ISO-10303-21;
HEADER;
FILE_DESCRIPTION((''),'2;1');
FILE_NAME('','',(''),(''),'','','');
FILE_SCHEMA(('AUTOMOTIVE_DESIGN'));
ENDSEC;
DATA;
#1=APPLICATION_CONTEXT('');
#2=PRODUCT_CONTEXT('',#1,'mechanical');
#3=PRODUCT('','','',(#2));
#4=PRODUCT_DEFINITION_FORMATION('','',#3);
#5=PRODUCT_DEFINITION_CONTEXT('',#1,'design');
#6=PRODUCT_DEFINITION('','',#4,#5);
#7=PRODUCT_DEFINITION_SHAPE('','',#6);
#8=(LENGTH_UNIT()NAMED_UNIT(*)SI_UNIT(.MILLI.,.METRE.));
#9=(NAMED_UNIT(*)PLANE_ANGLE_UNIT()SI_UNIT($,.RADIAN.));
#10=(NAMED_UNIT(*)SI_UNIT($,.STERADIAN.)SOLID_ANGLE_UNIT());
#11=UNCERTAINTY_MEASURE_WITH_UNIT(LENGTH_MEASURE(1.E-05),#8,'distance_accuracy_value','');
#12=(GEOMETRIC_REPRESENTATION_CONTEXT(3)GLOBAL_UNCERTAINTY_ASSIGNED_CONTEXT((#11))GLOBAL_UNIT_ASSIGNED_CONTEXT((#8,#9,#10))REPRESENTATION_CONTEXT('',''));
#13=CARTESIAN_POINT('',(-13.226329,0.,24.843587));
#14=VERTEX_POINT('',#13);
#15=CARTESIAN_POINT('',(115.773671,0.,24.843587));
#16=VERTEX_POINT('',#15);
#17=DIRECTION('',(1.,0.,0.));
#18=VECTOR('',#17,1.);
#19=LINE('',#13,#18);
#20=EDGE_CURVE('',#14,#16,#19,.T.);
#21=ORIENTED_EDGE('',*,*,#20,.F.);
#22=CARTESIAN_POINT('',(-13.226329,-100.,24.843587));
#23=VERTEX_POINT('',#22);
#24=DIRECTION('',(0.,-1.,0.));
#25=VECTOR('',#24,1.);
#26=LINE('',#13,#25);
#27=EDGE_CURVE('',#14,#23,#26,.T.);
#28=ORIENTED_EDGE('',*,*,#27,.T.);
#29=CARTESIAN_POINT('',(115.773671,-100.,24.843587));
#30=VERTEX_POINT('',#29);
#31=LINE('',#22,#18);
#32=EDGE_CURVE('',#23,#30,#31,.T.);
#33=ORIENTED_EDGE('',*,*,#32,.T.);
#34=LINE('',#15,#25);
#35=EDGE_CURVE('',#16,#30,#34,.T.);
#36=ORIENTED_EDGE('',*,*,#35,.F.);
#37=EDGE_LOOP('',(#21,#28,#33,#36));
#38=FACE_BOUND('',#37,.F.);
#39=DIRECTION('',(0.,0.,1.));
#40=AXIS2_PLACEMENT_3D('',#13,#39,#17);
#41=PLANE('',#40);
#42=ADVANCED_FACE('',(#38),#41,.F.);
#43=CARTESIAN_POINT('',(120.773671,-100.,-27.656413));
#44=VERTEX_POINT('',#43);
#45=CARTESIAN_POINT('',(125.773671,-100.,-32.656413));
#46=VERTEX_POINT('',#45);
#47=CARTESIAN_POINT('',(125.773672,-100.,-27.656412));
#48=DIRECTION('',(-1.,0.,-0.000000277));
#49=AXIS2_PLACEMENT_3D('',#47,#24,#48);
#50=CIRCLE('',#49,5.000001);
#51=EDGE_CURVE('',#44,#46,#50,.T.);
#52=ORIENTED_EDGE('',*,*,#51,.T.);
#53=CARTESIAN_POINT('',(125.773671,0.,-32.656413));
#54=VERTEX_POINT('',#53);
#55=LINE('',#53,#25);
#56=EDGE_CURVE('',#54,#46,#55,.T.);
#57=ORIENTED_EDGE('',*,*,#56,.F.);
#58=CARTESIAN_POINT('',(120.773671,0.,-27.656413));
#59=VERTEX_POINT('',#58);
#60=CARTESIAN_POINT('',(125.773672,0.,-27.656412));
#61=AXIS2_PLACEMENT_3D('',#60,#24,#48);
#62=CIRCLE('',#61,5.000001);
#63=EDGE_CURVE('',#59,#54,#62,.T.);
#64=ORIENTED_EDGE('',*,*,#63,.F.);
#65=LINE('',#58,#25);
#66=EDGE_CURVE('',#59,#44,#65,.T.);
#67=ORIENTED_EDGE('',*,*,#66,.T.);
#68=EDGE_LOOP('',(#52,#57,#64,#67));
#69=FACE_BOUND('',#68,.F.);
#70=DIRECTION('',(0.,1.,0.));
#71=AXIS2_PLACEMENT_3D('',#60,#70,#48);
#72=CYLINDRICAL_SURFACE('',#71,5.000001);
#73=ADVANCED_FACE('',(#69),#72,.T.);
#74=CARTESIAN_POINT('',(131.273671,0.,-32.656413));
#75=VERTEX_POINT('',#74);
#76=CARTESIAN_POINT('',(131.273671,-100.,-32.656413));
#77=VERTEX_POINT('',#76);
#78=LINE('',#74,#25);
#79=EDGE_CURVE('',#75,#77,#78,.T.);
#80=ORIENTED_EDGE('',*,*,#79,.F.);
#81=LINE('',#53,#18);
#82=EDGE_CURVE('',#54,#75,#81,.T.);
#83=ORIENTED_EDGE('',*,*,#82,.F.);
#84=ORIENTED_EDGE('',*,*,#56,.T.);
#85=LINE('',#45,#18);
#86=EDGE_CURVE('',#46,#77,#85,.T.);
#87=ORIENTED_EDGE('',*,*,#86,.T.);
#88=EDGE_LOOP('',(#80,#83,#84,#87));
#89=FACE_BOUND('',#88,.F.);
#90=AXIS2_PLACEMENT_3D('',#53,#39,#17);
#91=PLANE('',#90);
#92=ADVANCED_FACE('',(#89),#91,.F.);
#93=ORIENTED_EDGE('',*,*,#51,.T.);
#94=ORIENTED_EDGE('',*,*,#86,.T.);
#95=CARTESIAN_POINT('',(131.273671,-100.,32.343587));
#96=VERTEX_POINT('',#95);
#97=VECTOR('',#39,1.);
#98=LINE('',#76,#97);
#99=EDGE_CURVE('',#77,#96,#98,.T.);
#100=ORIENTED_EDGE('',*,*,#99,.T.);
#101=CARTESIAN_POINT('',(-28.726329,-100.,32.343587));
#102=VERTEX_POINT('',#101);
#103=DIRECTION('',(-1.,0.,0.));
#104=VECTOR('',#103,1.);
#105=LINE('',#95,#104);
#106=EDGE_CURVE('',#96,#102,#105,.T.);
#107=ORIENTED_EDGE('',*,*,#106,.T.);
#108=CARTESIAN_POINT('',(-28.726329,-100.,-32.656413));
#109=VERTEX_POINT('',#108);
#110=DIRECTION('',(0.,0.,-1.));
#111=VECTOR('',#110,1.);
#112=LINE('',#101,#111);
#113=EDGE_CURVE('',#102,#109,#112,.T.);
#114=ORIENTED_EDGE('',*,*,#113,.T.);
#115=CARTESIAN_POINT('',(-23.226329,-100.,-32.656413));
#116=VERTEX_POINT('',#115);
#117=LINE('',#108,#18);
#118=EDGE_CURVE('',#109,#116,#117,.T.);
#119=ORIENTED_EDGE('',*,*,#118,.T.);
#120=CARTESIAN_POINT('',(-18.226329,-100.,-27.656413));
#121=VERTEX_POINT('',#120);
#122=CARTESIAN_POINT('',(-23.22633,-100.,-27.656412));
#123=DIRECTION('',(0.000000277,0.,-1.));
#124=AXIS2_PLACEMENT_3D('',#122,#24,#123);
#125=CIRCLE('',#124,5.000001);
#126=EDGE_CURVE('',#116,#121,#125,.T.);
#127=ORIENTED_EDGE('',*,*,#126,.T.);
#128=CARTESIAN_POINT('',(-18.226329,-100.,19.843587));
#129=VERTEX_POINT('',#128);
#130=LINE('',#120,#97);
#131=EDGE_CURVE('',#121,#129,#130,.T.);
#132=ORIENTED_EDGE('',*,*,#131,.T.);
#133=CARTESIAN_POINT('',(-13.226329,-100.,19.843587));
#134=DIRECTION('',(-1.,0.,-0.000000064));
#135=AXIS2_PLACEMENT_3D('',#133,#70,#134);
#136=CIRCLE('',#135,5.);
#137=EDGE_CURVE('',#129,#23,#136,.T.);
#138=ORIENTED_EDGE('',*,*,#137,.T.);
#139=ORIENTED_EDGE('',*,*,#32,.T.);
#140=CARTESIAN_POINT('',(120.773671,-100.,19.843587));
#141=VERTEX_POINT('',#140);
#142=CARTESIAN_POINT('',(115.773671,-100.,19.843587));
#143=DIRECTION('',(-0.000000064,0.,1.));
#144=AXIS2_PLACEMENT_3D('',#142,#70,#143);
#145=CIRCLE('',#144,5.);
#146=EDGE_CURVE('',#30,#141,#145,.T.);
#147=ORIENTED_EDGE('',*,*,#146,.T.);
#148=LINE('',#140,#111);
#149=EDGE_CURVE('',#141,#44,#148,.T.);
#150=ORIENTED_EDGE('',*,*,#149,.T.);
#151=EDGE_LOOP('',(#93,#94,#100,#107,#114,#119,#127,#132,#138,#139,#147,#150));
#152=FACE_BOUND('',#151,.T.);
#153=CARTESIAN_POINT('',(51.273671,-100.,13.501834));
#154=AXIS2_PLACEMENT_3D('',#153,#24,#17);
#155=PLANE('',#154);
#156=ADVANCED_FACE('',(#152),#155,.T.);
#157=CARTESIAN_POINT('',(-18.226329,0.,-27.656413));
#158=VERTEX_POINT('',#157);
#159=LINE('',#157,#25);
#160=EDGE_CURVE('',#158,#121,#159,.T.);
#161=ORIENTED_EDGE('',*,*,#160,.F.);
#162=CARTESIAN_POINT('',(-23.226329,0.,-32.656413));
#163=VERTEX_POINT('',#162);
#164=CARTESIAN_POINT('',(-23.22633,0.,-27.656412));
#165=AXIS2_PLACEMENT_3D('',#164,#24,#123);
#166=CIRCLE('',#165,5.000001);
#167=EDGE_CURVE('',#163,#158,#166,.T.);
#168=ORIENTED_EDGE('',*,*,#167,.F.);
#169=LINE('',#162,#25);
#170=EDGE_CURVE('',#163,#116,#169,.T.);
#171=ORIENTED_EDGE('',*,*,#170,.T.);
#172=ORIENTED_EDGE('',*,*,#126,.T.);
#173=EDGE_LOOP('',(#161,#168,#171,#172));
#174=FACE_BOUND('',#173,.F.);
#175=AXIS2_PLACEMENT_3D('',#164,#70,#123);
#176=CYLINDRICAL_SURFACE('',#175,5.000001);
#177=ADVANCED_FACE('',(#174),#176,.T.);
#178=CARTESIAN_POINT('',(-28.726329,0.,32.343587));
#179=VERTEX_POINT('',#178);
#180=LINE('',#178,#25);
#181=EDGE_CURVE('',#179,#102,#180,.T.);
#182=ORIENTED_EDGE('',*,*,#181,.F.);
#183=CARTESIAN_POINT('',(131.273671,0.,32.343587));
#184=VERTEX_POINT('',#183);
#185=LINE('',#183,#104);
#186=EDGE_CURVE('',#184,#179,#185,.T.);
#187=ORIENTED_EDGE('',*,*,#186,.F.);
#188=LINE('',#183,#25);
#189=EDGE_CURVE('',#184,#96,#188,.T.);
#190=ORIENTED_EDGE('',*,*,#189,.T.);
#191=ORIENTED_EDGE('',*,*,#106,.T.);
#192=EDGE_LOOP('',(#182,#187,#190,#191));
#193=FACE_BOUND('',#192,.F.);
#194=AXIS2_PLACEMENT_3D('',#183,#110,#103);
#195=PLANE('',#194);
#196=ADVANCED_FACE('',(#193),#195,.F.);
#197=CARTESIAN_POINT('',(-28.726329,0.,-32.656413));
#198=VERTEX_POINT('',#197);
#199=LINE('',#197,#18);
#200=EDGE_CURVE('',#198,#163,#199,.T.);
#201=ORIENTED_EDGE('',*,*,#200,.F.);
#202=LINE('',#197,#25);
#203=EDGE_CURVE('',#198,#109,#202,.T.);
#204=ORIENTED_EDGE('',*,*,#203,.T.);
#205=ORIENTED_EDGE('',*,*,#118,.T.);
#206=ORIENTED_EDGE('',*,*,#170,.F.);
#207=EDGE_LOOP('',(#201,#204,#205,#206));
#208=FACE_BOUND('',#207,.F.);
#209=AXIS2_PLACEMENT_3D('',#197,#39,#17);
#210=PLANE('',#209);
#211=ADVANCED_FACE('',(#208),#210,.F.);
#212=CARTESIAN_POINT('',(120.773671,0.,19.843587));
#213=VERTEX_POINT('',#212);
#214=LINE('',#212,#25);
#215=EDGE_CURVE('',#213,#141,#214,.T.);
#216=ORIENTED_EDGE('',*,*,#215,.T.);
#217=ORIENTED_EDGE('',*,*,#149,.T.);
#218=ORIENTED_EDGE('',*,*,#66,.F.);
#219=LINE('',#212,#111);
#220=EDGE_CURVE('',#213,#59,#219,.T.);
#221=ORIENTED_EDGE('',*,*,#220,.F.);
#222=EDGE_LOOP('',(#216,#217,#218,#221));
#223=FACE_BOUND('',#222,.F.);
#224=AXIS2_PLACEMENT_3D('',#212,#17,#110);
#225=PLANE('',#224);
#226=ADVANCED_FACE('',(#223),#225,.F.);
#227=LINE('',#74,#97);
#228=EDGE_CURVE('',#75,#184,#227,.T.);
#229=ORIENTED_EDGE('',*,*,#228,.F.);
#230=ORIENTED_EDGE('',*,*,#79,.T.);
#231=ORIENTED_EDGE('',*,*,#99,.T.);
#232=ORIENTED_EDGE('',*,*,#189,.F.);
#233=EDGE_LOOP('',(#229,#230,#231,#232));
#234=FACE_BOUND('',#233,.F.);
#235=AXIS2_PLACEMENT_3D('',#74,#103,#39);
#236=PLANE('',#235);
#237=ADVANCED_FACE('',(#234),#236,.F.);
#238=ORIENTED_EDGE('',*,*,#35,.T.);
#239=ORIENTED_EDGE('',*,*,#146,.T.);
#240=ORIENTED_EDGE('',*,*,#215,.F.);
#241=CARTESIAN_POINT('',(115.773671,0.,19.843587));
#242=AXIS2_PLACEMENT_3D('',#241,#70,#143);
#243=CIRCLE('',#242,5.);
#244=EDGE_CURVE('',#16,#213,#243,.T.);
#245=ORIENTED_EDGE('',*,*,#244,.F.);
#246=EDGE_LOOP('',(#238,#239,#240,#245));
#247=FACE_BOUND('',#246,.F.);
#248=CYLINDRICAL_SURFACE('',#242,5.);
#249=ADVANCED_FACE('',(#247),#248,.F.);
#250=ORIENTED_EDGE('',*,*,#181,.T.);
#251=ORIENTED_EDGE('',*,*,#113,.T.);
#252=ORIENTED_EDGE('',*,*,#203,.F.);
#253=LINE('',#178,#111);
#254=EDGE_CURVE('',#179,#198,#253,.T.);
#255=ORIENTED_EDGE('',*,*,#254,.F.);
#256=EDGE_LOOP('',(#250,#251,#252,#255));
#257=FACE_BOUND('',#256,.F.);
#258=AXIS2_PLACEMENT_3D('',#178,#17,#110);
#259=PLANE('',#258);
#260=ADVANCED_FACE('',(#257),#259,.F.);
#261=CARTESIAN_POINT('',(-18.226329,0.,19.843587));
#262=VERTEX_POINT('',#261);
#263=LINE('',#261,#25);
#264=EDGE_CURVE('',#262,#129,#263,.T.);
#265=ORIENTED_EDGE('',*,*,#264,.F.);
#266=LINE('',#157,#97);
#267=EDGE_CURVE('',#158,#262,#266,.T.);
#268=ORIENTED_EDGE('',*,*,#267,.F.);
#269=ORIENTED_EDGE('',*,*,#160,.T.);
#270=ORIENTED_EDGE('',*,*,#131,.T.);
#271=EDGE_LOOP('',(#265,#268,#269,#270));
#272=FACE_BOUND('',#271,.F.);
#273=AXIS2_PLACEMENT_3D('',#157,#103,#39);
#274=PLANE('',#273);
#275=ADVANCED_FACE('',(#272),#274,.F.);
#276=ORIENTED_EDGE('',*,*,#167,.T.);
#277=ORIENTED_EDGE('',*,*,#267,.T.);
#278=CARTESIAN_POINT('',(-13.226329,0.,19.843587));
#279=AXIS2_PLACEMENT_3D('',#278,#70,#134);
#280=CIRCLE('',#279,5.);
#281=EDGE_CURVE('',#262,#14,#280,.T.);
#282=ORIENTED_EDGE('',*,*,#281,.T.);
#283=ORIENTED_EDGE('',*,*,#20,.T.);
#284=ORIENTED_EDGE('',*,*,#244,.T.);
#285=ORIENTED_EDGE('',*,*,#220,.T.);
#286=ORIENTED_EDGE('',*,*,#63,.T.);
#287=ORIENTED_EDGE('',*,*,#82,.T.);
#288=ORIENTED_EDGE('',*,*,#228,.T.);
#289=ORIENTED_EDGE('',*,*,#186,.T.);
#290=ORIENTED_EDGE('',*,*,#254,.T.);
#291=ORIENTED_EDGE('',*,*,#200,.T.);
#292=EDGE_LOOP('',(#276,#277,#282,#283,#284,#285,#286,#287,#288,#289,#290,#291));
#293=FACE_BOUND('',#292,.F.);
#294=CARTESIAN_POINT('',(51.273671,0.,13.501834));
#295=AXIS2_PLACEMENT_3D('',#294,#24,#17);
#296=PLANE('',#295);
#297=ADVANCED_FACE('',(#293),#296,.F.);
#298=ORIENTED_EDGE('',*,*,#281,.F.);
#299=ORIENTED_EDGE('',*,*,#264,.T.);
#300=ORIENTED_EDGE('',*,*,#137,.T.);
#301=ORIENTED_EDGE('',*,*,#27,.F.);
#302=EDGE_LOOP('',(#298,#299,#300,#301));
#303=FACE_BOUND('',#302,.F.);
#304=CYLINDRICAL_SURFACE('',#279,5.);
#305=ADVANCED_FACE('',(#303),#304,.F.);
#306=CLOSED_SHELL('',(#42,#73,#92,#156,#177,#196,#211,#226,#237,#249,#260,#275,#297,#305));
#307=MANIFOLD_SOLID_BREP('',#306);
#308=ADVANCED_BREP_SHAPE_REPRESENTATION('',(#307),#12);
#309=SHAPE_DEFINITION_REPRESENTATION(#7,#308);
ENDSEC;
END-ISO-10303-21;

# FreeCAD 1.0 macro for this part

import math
import FreeCAD as App
import Part
import Sketcher

doc = App.newDocument("Part")
body = doc.addObject("PartDesign::Body", "Body")

sketch1 = body.newObject("Sketcher::SketchObject", "Sketch")
sketch1.AttachmentSupport = (doc.getObject("XZ_Plane"), [""])
sketch1.MapMode = "FlatFace"
sketch1.addGeometry(Part.LineSegment(App.Vector(131.3, 32.3, 0), App.Vector(-28.7, 32.3, 0)), False)
sketch1.addGeometry(Part.LineSegment(App.Vector(-28.7, 32.3, 0), App.Vector(-28.7, -32.7, 0)), False)
sketch1.addGeometry(Part.LineSegment(App.Vector(-28.7, -32.7, 0), App.Vector(-23.2, -32.7, 0)), False)
sketch1.addGeometry(Part.ArcOfCircle(Part.Circle(App.Vector(-23.2, -27.7, 0), App.Vector(0, 0, 1), 5), math.radians(-90), math.radians(0)), False)
sketch1.addGeometry(Part.LineSegment(App.Vector(-18.2, -27.7, 0), App.Vector(-18.2, 19.8, 0)), False)
sketch1.addGeometry(Part.ArcOfCircle(Part.Circle(App.Vector(-13.2, 19.8, 0), App.Vector(0, 0, 1), 5), math.radians(90), math.radians(180)), False)
sketch1.addGeometry(Part.LineSegment(App.Vector(-13.2, 24.8, 0), App.Vector(115.8, 24.8, 0)), False)
sketch1.addGeometry(Part.ArcOfCircle(Part.Circle(App.Vector(115.8, 19.8, 0), App.Vector(0, 0, 1), 5), math.radians(0), math.radians(90)), False)
sketch1.addGeometry(Part.LineSegment(App.Vector(120.8, 19.8, 0), App.Vector(120.8, -27.7, 0)), False)
sketch1.addGeometry(Part.ArcOfCircle(Part.Circle(App.Vector(125.8, -27.7, 0), App.Vector(0, 0, 1), 5), math.radians(-180), math.radians(-90)), False)
sketch1.addGeometry(Part.LineSegment(App.Vector(125.8, -32.7, 0), App.Vector(131.3, -32.7, 0)), False)
sketch1.addGeometry(Part.LineSegment(App.Vector(131.3, -32.7, 0), App.Vector(131.3, 32.3, 0)), False)
sketch1.addConstraint(Sketcher.Constraint("Coincident", 0, 2, 1, 1))
sketch1.addConstraint(Sketcher.Constraint("Coincident", 1, 2, 2, 1))
sketch1.addConstraint(Sketcher.Constraint("Tangent", 2, 2, 3, 1))
sketch1.addConstraint(Sketcher.Constraint("Tangent", 3, 2, 4, 1))
sketch1.addConstraint(Sketcher.Constraint("Tangent", 4, 2, 5, 2))
sketch1.addConstraint(Sketcher.Constraint("Tangent", 5, 1, 6, 1))
sketch1.addConstraint(Sketcher.Constraint("Tangent", 6, 2, 7, 2))
sketch1.addConstraint(Sketcher.Constraint("Tangent", 7, 1, 8, 1))
sketch1.addConstraint(Sketcher.Constraint("Tangent", 8, 2, 9, 1))
sketch1.addConstraint(Sketcher.Constraint("Tangent", 9, 2, 10, 1))
sketch1.addConstraint(Sketcher.Constraint("Coincident", 10, 2, 11, 1))
sketch1.addConstraint(Sketcher.Constraint("Coincident", 11, 2, 0, 1))
sketch1.addConstraint(Sketcher.Constraint("Horizontal", 0))
sketch1.addConstraint(Sketcher.Constraint("Vertical", 1))
sketch1.addConstraint(Sketcher.Constraint("Horizontal", 2))
sketch1.addConstraint(Sketcher.Constraint("Vertical", 4))
sketch1.addConstraint(Sketcher.Constraint("Horizontal", 6))
sketch1.addConstraint(Sketcher.Constraint("Vertical", 8))
sketch1.addConstraint(Sketcher.Constraint("Horizontal", 10))
sketch1.addConstraint(Sketcher.Constraint("Vertical", 11))
sketch1.addConstraint(Sketcher.Constraint("Equal", 3, 5))
sketch1.addConstraint(Sketcher.Constraint("Equal", 5, 7))
sketch1.addConstraint(Sketcher.Constraint("Equal", 7, 9))
sketch1.addConstraint(Sketcher.Constraint("Horizontal", 3, 3, 9, 3))
sketch1.addConstraint(Sketcher.Constraint("Equal", 2, 10))
sketch1.addConstraint(Sketcher.Constraint("Radius", 3, 5.000001))
sketch1.addConstraint(Sketcher.Constraint("DistanceX", 0, 2, 0, 1, 160.0))
sketch1.addConstraint(Sketcher.Constraint("DistanceX", 6, 1, 6, 2, 129.0))
sketch1.addConstraint(Sketcher.Constraint("DistanceY", 1, 2, 1, 1, 65.0))
sketch1.addConstraint(Sketcher.Constraint("DistanceY", 4, 1, 4, 2, 47.5))
sketch1.addConstraint(Sketcher.Constraint("DistanceX", 3, 3, -1, 1, 23.22633))
sketch1.addConstraint(Sketcher.Constraint("DistanceY", 3, 3, -1, 1, 27.656412))
pad1 = body.newObject("PartDesign::Pad", "Pad")
pad1.Profile = sketch1
pad1.Length = 100

doc.recompute()
